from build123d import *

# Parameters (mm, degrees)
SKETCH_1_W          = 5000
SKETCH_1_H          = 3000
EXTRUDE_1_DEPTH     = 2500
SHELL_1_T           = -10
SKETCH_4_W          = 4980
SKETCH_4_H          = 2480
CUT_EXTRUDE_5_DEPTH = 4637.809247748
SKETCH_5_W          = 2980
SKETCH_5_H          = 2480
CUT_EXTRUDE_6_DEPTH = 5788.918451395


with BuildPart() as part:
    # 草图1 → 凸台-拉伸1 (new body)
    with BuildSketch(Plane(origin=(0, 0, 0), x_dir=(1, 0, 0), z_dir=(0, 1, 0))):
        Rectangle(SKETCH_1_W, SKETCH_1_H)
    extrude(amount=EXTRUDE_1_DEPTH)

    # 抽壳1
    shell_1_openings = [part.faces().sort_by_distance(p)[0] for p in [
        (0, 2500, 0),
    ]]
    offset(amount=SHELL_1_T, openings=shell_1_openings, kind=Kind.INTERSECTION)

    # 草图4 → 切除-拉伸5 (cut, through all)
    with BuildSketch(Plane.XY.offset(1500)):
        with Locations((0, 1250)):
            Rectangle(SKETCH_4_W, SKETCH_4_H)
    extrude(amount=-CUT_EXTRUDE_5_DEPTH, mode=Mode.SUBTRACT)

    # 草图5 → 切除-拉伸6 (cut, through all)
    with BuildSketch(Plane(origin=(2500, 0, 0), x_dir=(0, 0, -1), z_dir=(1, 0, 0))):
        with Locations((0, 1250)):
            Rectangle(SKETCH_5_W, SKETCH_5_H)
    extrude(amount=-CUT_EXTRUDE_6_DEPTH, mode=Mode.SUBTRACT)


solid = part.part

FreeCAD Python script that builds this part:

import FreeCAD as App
import Part
import Sketcher

V = App.Vector


def faces_at(feature, points):
    """Names of the faces that lie closest to the given points."""
    faces = feature.Shape.Faces
    near = lambda p: min(range(len(faces)), key=lambda i: faces[i].distToShape(Part.Vertex(*p))[0])
    return sorted({f"Face{near(p) + 1}" for p in points})


def add_polygon(sketch, points):
    """Adds a closed chain of lines whose ends are joined by coincident constraints."""
    first, n = sketch.GeometryCount, len(points)
    for a, b in zip(points, points[1:] + points[:1]):
        sketch.addGeometry(Part.LineSegment(App.Vector(*a, 0), App.Vector(*b, 0)), False)
    for i in range(n):
        sketch.addConstraint(Sketcher.Constraint("Coincident", first + i, 2, first + (i + 1) % n, 1))

doc = App.newDocument("Part")
body = doc.addObject("PartDesign::Body", "Body")

sketch1 = doc.addObject("Sketcher::SketchObject", "Sketch")
body.addObject(sketch1)
sketch1.AttachmentSupport = (doc.XZ_Plane, [""])
sketch1.MapMode = "FlatFace"
add_polygon(sketch1, [(-2500, -1500), (-2500, 1500), (2500, 1500), (2500, -1500)])
sketch1.addConstraint([
    Sketcher.Constraint("Vertical", 0),
    Sketcher.Constraint("Horizontal", 1),
    Sketcher.Constraint("Vertical", 2),
    Sketcher.Constraint("Horizontal", 3),
    Sketcher.Constraint("Symmetric", 0, 2, 2, 2, -1, 1),
    Sketcher.Constraint("DistanceX", 1, 1, 1, 2, 5000.0),
    Sketcher.Constraint("DistanceY", 0, 1, 0, 2, 3000.0),
])
pad1 = doc.addObject("PartDesign::Pad", "Pad")
body.addObject(pad1)
pad1.Profile = sketch1
pad1.Length = 2500
pad1.Reversed = True
doc.recompute()

thickness = doc.addObject("PartDesign::Thickness", "Thickness")
body.addObject(thickness)
thickness.Base = (pad1, faces_at(pad1, [(0, 2500, 0)]))
thickness.Value = 10
thickness.Reversed = True
thickness.Join = "Intersection"

sketch2 = doc.addObject("Sketcher::SketchObject", "Sketch001")
body.addObject(sketch2)
sketch2.AttachmentSupport = (doc.XY_Plane, [""])
sketch2.MapMode = "FlatFace"
sketch2.AttachmentOffset = App.Placement(V(0, 0, 1500), App.Rotation())
add_polygon(sketch2, [(-2490, 2490), (-2490, 10), (2490, 10), (2490, 2490)])
sketch2.addConstraint([
    Sketcher.Constraint("Vertical", 0),
    Sketcher.Constraint("Horizontal", 1),
    Sketcher.Constraint("Vertical", 2),
    Sketcher.Constraint("Horizontal", 3),
    Sketcher.Constraint("DistanceX", 1, 1, 1, 2, 4980.0),
    Sketcher.Constraint("DistanceY", 0, 2, 0, 1, 2480.0),
    Sketcher.Constraint("DistanceX", 0, 2, -1, 1, 2490.0),
    Sketcher.Constraint("DistanceY", -1, 1, 0, 2, 10.0),
])
pocket1 = doc.addObject("PartDesign::Pocket", "Pocket")
body.addObject(pocket1)
pocket1.Profile = sketch2
pocket1.Type = "ThroughAll"

sketch3 = doc.addObject("Sketcher::SketchObject", "Sketch002")
body.addObject(sketch3)
sketch3.AttachmentSupport = (doc.YZ_Plane, [""])
sketch3.MapMode = "FlatFace"
sketch3.AttachmentOffset = App.Placement(V(0, 0, 2500), App.Rotation())
add_polygon(sketch3, [(2490, 1490), (10, 1490), (10, -1490), (2490, -1490)])
sketch3.addConstraint([
    Sketcher.Constraint("Horizontal", 0),
    Sketcher.Constraint("Vertical", 1),
    Sketcher.Constraint("Horizontal", 2),
    Sketcher.Constraint("Vertical", 3),
    Sketcher.Constraint("DistanceX", 0, 2, 0, 1, 2480.0),
    Sketcher.Constraint("DistanceY", 1, 2, 1, 1, 2980.0),
    Sketcher.Constraint("DistanceX", -1, 1, 0, 2, 10.0),
    Sketcher.Constraint("DistanceY", -1, 1, 0, 2, 1490.0),
])
pocket2 = doc.addObject("PartDesign::Pocket", "Pocket001")
body.addObject(pocket2)
pocket2.Profile = sketch3
pocket2.Type = "ThroughAll"

doc.recompute()
